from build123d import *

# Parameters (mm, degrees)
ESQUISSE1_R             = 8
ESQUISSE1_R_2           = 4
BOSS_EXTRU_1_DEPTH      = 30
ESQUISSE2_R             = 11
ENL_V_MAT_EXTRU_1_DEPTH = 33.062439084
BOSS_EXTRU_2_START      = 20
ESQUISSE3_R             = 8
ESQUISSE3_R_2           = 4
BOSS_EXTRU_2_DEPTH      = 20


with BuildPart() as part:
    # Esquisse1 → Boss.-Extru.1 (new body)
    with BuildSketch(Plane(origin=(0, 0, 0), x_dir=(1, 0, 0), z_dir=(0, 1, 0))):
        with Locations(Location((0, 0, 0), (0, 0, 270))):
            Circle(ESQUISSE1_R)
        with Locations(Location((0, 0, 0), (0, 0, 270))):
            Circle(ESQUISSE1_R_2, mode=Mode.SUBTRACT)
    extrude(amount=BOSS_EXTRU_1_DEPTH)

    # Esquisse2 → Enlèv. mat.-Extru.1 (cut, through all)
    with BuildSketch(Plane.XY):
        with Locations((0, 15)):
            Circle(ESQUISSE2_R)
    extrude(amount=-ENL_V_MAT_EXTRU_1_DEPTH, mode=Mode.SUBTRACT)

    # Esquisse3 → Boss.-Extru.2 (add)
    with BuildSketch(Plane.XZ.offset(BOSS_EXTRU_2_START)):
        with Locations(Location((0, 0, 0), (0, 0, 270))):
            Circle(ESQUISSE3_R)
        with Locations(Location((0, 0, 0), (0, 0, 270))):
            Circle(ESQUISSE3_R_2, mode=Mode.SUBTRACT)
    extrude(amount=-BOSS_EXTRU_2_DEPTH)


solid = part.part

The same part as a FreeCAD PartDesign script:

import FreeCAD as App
import Part
import Sketcher

V = App.Vector
Q = App.Units.Quantity

doc = App.newDocument("Part")
body = doc.addObject("PartDesign::Body", "Body")

sketch1 = doc.addObject("Sketcher::SketchObject", "Sketch")
body.addObject(sketch1)
sketch1.AttachmentSupport = (doc.XZ_Plane, [""])
sketch1.MapMode = "FlatFace"
sketch1.addGeometry([
    Part.Circle(V(0, 0, 0), V(0, 0, 1), 8),
    Part.Circle(V(0, 0, 0), V(0, 0, 1), 4),
], False)
sketch1.addConstraint([
    Sketcher.Constraint("Coincident", 0, 3, -1, 1),
    Sketcher.Constraint("Coincident", 1, 3, -1, 1),
    Sketcher.Constraint("Diameter", 0, Q("16 mm")),
    Sketcher.Constraint("Diameter", 1, Q("8 mm")),
])
pad1 = doc.addObject("PartDesign::Pad", "Pad")
body.addObject(pad1)
pad1.Profile = sketch1
pad1.Length = 30
pad1.Reversed = True

sketch2 = doc.addObject("Sketcher::SketchObject", "Sketch001")
body.addObject(sketch2)
sketch2.AttachmentSupport = (doc.XY_Plane, [""])
sketch2.MapMode = "FlatFace"
sketch2.addGeometry(Part.Circle(V(0, 15, 0), V(0, 0, 1), 11), False)
sketch2.addConstraint([
    Sketcher.Constraint("PointOnObject", 0, 3, -2),
    Sketcher.Constraint("Diameter", 0, Q("22 mm")),
    Sketcher.Constraint("DistanceY", -1, 1, 0, 3, Q("15 mm")),
])
pocket1 = doc.addObject("PartDesign::Pocket", "Pocket")
body.addObject(pocket1)
pocket1.Profile = sketch2
pocket1.Type = "ThroughAll"

sketch3 = doc.addObject("Sketcher::SketchObject", "Sketch002")
body.addObject(sketch3)
sketch3.AttachmentSupport = (doc.XZ_Plane, [""])
sketch3.MapMode = "FlatFace"
sketch3.AttachmentOffset = App.Placement(V(0, 0, 20), App.Rotation())
sketch3.addGeometry([
    Part.Circle(V(0, 0, 0), V(0, 0, 1), 8),
    Part.Circle(V(0, 0, 0), V(0, 0, 1), 4),
], False)
sketch3.addConstraint([
    Sketcher.Constraint("Coincident", 0, 3, -1, 1),
    Sketcher.Constraint("Coincident", 1, 3, -1, 1),
    Sketcher.Constraint("Diameter", 0, Q("16 mm")),
    Sketcher.Constraint("Diameter", 1, Q("8 mm")),
])
pad2 = doc.addObject("PartDesign::Pad", "Pad001")
body.addObject(pad2)
pad2.Profile = sketch3
pad2.Length = 20
pad2.Reversed = True

doc.recompute()
